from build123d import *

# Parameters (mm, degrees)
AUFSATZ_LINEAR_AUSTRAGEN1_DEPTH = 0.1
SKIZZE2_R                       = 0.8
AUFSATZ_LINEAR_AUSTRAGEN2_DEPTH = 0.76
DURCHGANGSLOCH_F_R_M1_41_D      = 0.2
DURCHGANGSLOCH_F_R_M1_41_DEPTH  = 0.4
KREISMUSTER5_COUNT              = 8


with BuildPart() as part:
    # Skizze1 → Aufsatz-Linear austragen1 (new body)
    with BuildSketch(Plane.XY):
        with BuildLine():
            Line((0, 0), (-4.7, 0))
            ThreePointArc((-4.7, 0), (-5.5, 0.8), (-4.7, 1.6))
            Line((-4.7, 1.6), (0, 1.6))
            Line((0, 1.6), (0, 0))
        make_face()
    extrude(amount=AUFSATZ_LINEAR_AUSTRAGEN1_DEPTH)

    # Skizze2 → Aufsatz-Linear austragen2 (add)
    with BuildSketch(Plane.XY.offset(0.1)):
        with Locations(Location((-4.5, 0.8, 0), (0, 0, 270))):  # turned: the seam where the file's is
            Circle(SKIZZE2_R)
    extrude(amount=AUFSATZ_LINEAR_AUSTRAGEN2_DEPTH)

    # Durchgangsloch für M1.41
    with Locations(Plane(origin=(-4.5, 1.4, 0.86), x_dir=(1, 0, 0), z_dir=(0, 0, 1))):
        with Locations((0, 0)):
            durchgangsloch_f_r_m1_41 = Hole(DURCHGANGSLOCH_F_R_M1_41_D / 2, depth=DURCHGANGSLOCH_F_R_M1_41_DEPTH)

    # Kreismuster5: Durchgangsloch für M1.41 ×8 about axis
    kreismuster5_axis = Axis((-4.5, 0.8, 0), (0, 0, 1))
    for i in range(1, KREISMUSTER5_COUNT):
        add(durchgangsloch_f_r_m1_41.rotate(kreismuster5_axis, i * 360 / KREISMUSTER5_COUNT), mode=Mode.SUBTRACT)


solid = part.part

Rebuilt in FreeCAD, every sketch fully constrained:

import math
import FreeCAD as App
import Part
import Sketcher
Q = App.Units.Quantity

doc = App.newDocument("Part")
body = doc.addObject("PartDesign::Body", "Body")

# Sketch on XY plane
sketch1 = body.newObject("Sketcher::SketchObject", "Sketch")
sketch1.AttachmentSupport = (doc.getObject("XY_Plane"), [""])
sketch1.MapMode = "FlatFace"
sketch1.addGeometry([
    Part.LineSegment(App.Vector(-4.7, 0, 0), App.Vector(0, 0, 0)),
    Part.LineSegment(App.Vector(0, 0, 0), App.Vector(0, 1.6, 0)),
    Part.LineSegment(App.Vector(0, 1.6, 0), App.Vector(-4.7, 1.6, 0)),
    Part.ArcOfCircle(Part.Circle(App.Vector(-4.7, 0.8, 0), App.Vector(0, 0, 1), 0.8), math.radians(90), math.radians(270)),
], False)
sketch1.addConstraint([
    Sketcher.Constraint("Coincident", 0, 2, 1, 1),
    Sketcher.Constraint("Coincident", 1, 2, 2, 1),
    Sketcher.Constraint("Tangent", 2, 2, 3, 1),
    Sketcher.Constraint("Tangent", 3, 2, 0, 1),
    Sketcher.Constraint("Horizontal", 0),
    Sketcher.Constraint("Vertical", 1),
    Sketcher.Constraint("Horizontal", 2),
    Sketcher.Constraint("Coincident", 0, 2, -1, 1),
    Sketcher.Constraint("Radius", 3, Q("0.8 mm")),
    Sketcher.Constraint("DistanceX", 0, 1, 0, 2, Q("4.7 mm")),
])
pad1 = body.newObject("PartDesign::Pad", "Pad")
pad1.Profile = sketch1
pad1.Length = 0.1

# Sketch on XY plane
sketch2 = body.newObject("Sketcher::SketchObject", "Sketch001")
sketch2.AttachmentSupport = (doc.getObject("XY_Plane"), [""])
sketch2.MapMode = "FlatFace"
sketch2.AttachmentOffset = App.Placement(App.Vector(0, 0, 0.1), App.Rotation())
sketch2.addGeometry(Part.Circle(App.Vector(-4.5, 0.8, 0), App.Vector(0, 0, 1), 0.8), False)
sketch2.addConstraint([
    Sketcher.Constraint("Diameter", 0, Q("1.6 mm")),
    Sketcher.Constraint("DistanceX", 0, 3, -1, 1, Q("4.5 mm")),
    Sketcher.Constraint("DistanceY", -1, 1, 0, 3, Q("0.8 mm")),
])
pad2 = body.newObject("PartDesign::Pad", "Pad001")
pad2.Profile = sketch2
pad2.Length = 0.76

# Sketch on XY plane
sketch3 = body.newObject("Sketcher::SketchObject", "Sketch002")
sketch3.AttachmentSupport = (doc.getObject("XY_Plane"), [""])
sketch3.MapMode = "FlatFace"
sketch3.AttachmentOffset = App.Placement(App.Vector(0, 0, 0.86), App.Rotation())
sketch3.addGeometry(Part.Circle(App.Vector(-4.5, 1.4, 0), App.Vector(0, 0, 1), 0.1), False)
sketch3.addConstraint([
    Sketcher.Constraint("Diameter", 0, Q("0.2 mm")),
    Sketcher.Constraint("DistanceX", 0, 3, -1, 1, Q("4.5 mm")),
    Sketcher.Constraint("DistanceY", -1, 1, 0, 3, Q("1.4 mm")),
])
doc.recompute()
hole = body.newObject("PartDesign::Hole", "Hole")
hole.Profile = sketch3
hole.ThreadType = "None"
hole.Diameter = 0.2
hole.DepthType = "Dimension"
hole.Depth = 0.4
hole.DrillPoint = "Flat"
doc.recompute()

datumline = body.newObject("PartDesign::Line", "DatumLine")
datumline.Placement = App.Placement(App.Vector(-4.5, 0.8, 0), App.Rotation(App.Vector(0, 0, 1), App.Vector(0, 0, 1)))
polarpattern = body.newObject("PartDesign::PolarPattern", "PolarPattern")
polarpattern.Originals = [hole]
polarpattern.Axis = (datumline, [""])
polarpattern.Angle = 360
polarpattern.Occurrences = 8
body.Tip = polarpattern

doc.recompute()
